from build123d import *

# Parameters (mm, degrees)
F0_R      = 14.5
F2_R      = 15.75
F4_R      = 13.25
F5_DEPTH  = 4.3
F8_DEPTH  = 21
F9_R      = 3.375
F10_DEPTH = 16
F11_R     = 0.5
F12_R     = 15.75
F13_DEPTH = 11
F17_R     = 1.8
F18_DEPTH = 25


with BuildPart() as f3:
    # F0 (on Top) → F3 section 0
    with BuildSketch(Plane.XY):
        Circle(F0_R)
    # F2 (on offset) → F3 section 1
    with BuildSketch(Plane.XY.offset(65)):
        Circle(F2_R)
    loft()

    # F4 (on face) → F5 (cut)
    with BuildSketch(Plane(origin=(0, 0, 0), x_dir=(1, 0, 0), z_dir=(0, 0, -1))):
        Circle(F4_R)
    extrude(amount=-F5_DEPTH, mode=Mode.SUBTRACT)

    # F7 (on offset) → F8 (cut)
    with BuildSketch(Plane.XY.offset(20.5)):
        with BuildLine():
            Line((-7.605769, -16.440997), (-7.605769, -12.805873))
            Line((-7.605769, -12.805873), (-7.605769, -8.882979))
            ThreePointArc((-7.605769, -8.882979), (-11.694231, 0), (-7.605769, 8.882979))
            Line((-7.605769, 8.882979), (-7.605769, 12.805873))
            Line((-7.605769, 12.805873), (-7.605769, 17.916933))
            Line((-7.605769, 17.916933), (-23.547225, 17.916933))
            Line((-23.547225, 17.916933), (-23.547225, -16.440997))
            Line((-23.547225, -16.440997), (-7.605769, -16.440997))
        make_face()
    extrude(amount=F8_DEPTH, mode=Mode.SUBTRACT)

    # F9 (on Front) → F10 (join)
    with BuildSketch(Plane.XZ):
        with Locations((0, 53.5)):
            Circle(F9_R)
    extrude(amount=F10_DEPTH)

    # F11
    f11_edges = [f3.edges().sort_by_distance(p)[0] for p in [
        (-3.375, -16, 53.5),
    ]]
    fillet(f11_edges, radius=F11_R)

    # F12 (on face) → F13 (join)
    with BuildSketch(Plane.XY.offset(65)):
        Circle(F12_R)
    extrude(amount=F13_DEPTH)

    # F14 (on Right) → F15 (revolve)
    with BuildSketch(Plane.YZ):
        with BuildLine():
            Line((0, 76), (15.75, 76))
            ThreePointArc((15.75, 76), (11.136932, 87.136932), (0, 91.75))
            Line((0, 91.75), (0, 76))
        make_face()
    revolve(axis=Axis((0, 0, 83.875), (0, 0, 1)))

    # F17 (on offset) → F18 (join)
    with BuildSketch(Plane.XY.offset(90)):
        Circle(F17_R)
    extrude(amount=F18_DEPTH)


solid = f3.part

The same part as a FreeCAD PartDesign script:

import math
import FreeCAD as App
import Part
import Sketcher
from FreeCAD import Vector
Q = App.Units.Quantity


def edges_at(feature, points):
    """Names of the edges that pass closest to the given points."""
    edges = feature.Shape.Edges
    near = lambda p: min(range(len(edges)), key=lambda i: edges[i].distToShape(Part.Vertex(*p))[0])
    return sorted({f"Edge{near(p) + 1}" for p in points})

doc = App.newDocument("Part")
body = doc.addObject("PartDesign::Body", "Body")

# Sketch on XY plane
sketch1 = body.newObject("Sketcher::SketchObject", "Sketch")
sketch1.AttachmentSupport = (doc.getObject("XY_Plane"), [""])
sketch1.MapMode = "FlatFace"
sketch1.addGeometry(Part.Circle(Vector(0, 0, 0), Vector(0, 0, 1), 14), False)
sketch1.addConstraint([
    Sketcher.Constraint("Coincident", 0, 3, -1, 1),
    Sketcher.Constraint("Diameter", 0, Q("29 mm")),
])

# Sketch on XY plane
sketch2 = body.newObject("Sketcher::SketchObject", "Sketch001")
sketch2.AttachmentSupport = (doc.getObject("XY_Plane"), [""])
sketch2.MapMode = "FlatFace"
sketch2.AttachmentOffset = App.Placement(Vector(0, 0, 65), App.Rotation())
sketch2.addGeometry(Part.Circle(Vector(0, 0, 0), Vector(0, 0, 1), 16), False)
sketch2.addConstraint([
    Sketcher.Constraint("Coincident", 0, 3, -1, 1),
    Sketcher.Constraint("Diameter", 0, Q("31.5 mm")),
])

additiveloft = body.newObject("PartDesign::AdditiveLoft", "AdditiveLoft")
additiveloft.Profile = sketch1
additiveloft.Sections = [sketch2]

# Sketch on XY plane
sketch3 = body.newObject("Sketcher::SketchObject", "Sketch002")
sketch3.AttachmentSupport = (doc.getObject("XY_Plane"), [""])
sketch3.MapMode = "FlatFace"
sketch3.addGeometry(Part.Circle(Vector(0, 0, 0), Vector(0, 0, 1), 13), False)
sketch3.addConstraint([
    Sketcher.Constraint("Coincident", 0, 3, -1, 1),
    Sketcher.Constraint("Diameter", 0, Q("26.5 mm")),
])
pocket1 = body.newObject("PartDesign::Pocket", "Pocket")
pocket1.Profile = sketch3
pocket1.Length = 4.3
pocket1.Reversed = True

# Sketch on XY plane
sketch4 = body.newObject("Sketcher::SketchObject", "Sketch003")
sketch4.AttachmentSupport = (doc.getObject("XY_Plane"), [""])
sketch4.MapMode = "FlatFace"
sketch4.AttachmentOffset = App.Placement(Vector(0, 0, 20.5), App.Rotation())
sketch4.addGeometry([
    Part.LineSegment(Vector(-8, -16, 0), Vector(-8, -9, 0)),  # 0
    Part.ArcOfCircle(Part.Circle(Vector(0, 0, 0), Vector(0, 0, 1), 12), math.radians(131), math.radians(229)),  # 1
    Part.LineSegment(Vector(-8, 9, 0), Vector(-8, 18, 0)),  # 2
    Part.LineSegment(Vector(-8, 18, 0), Vector(-24, 18, 0)),  # 3
    Part.LineSegment(Vector(-24, 18, 0), Vector(-24, -16, 0)),  # 4
    Part.LineSegment(Vector(-24, -16, 0), Vector(-8, -16, 0)),  # 5
], False)
sketch4.addConstraint([
    Sketcher.Constraint("Coincident", 0, 2, 1, 2),
    Sketcher.Constraint("Coincident", 1, 1, 2, 1),
    Sketcher.Constraint("Coincident", 2, 2, 3, 1),
    Sketcher.Constraint("Coincident", 3, 2, 4, 1),
    Sketcher.Constraint("Coincident", 4, 2, 5, 1),
    Sketcher.Constraint("Coincident", 5, 2, 0, 1),
    Sketcher.Constraint("Vertical", 0),
    Sketcher.Constraint("Vertical", 2),
    Sketcher.Constraint("Horizontal", 3),
    Sketcher.Constraint("Vertical", 4),
    Sketcher.Constraint("Horizontal", 5),
    Sketcher.Constraint("Coincident", 1, 3, -1, 1),
    Sketcher.Constraint("Vertical", 0, 2, 1, 1),
    Sketcher.Constraint("Radius", 1, Q("11.694231 mm")),
    Sketcher.Constraint("DistanceY", 4, 2, 4, 1, Q("34.35793 mm")),
    Sketcher.Constraint("DistanceX", 3, 2, 3, 1, Q("15.941456 mm")),
    Sketcher.Constraint("DistanceY", 0, 1, 0, 2, Q("7.558018 mm")),
    Sketcher.Constraint("DistanceY", 2, 1, 2, 2, Q("9.033954 mm")),
])
pocket2 = body.newObject("PartDesign::Pocket", "Pocket001")
pocket2.Profile = sketch4
pocket2.Length = 21
pocket2.Reversed = True

# Sketch on XZ plane
sketch5 = body.newObject("Sketcher::SketchObject", "Sketch004")
sketch5.AttachmentSupport = (doc.getObject("XZ_Plane"), [""])
sketch5.MapMode = "FlatFace"
sketch5.addGeometry(Part.Circle(Vector(0, 53.5, 0), Vector(0, 0, 1), 3.4), False)
sketch5.addConstraint([
    Sketcher.Constraint("PointOnObject", 0, 3, -2),
    Sketcher.Constraint("Diameter", 0, Q("6.75 mm")),
    Sketcher.Constraint("DistanceY", -1, 1, 0, 3, Q("53.5 mm")),
])
pad1 = body.newObject("PartDesign::Pad", "Pad")
pad1.Profile = sketch5
pad1.Length = 16
doc.recompute()

fillet = body.newObject("PartDesign::Fillet", "Fillet")
fillet.Base = (pad1, edges_at(pad1, [(-3.375, -16, 53.5)]))
fillet.Radius = 0.5

# Sketch on XY plane
sketch6 = body.newObject("Sketcher::SketchObject", "Sketch005")
sketch6.AttachmentSupport = (doc.getObject("XY_Plane"), [""])
sketch6.MapMode = "FlatFace"
sketch6.AttachmentOffset = App.Placement(Vector(0, 0, 65), App.Rotation())
sketch6.addGeometry(Part.Circle(Vector(0, 0, 0), Vector(0, 0, 1), 16), False)
sketch6.addConstraint([
    Sketcher.Constraint("Coincident", 0, 3, -1, 1),
    Sketcher.Constraint("Diameter", 0, Q("31.5 mm")),
])
pad2 = body.newObject("PartDesign::Pad", "Pad001")
pad2.Profile = sketch6
pad2.Length = 11

# Sketch on YZ plane
sketch7 = body.newObject("Sketcher::SketchObject", "Sketch006")
sketch7.AttachmentSupport = (doc.getObject("YZ_Plane"), [""])
sketch7.MapMode = "FlatFace"
sketch7.addGeometry([
    Part.LineSegment(Vector(0, 76, 0), Vector(16, 76, 0)),
    Part.ArcOfCircle(Part.Circle(Vector(0, 76, 0), Vector(0, 0, 1), 16), math.radians(0), math.radians(90)),
    Part.LineSegment(Vector(0, 92, 0), Vector(0, 76, 0)),
], False)
sketch7.addConstraint([
    Sketcher.Constraint("Coincident", 0, 2, 1, 1),
    Sketcher.Constraint("Coincident", 1, 2, 2, 1),
    Sketcher.Constraint("Coincident", 2, 2, 0, 1),
    Sketcher.Constraint("Horizontal", 0),
    Sketcher.Constraint("Vertical", 2),
    Sketcher.Constraint("Coincident", 2, 2, 1, 3),
    Sketcher.Constraint("PointOnObject", 1, 3, -2),
    Sketcher.Constraint("Radius", 1, Q("15.749999 mm")),
    Sketcher.Constraint("DistanceY", -1, 1, 1, 3, Q("76.000001 mm")),
])
revolution = body.newObject("PartDesign::Revolution", "Revolution")
revolution.Profile = sketch7
revolution.ReferenceAxis = (sketch7, ["V_Axis"])
revolution.Angle = 360

# Sketch on XY plane
sketch8 = body.newObject("Sketcher::SketchObject", "Sketch007")
sketch8.AttachmentSupport = (doc.getObject("XY_Plane"), [""])
sketch8.MapMode = "FlatFace"
sketch8.AttachmentOffset = App.Placement(Vector(0, 0, 90), App.Rotation())
sketch8.addGeometry(Part.Circle(Vector(0, 0, 0), Vector(0, 0, 1), 1.8), False)
sketch8.addConstraint([
    Sketcher.Constraint("Coincident", 0, 3, -1, 1),
    Sketcher.Constraint("Diameter", 0, Q("3.6 mm")),
])
pad3 = body.newObject("PartDesign::Pad", "Pad002")
pad3.Profile = sketch8
pad3.Length = 25

doc.recompute()
